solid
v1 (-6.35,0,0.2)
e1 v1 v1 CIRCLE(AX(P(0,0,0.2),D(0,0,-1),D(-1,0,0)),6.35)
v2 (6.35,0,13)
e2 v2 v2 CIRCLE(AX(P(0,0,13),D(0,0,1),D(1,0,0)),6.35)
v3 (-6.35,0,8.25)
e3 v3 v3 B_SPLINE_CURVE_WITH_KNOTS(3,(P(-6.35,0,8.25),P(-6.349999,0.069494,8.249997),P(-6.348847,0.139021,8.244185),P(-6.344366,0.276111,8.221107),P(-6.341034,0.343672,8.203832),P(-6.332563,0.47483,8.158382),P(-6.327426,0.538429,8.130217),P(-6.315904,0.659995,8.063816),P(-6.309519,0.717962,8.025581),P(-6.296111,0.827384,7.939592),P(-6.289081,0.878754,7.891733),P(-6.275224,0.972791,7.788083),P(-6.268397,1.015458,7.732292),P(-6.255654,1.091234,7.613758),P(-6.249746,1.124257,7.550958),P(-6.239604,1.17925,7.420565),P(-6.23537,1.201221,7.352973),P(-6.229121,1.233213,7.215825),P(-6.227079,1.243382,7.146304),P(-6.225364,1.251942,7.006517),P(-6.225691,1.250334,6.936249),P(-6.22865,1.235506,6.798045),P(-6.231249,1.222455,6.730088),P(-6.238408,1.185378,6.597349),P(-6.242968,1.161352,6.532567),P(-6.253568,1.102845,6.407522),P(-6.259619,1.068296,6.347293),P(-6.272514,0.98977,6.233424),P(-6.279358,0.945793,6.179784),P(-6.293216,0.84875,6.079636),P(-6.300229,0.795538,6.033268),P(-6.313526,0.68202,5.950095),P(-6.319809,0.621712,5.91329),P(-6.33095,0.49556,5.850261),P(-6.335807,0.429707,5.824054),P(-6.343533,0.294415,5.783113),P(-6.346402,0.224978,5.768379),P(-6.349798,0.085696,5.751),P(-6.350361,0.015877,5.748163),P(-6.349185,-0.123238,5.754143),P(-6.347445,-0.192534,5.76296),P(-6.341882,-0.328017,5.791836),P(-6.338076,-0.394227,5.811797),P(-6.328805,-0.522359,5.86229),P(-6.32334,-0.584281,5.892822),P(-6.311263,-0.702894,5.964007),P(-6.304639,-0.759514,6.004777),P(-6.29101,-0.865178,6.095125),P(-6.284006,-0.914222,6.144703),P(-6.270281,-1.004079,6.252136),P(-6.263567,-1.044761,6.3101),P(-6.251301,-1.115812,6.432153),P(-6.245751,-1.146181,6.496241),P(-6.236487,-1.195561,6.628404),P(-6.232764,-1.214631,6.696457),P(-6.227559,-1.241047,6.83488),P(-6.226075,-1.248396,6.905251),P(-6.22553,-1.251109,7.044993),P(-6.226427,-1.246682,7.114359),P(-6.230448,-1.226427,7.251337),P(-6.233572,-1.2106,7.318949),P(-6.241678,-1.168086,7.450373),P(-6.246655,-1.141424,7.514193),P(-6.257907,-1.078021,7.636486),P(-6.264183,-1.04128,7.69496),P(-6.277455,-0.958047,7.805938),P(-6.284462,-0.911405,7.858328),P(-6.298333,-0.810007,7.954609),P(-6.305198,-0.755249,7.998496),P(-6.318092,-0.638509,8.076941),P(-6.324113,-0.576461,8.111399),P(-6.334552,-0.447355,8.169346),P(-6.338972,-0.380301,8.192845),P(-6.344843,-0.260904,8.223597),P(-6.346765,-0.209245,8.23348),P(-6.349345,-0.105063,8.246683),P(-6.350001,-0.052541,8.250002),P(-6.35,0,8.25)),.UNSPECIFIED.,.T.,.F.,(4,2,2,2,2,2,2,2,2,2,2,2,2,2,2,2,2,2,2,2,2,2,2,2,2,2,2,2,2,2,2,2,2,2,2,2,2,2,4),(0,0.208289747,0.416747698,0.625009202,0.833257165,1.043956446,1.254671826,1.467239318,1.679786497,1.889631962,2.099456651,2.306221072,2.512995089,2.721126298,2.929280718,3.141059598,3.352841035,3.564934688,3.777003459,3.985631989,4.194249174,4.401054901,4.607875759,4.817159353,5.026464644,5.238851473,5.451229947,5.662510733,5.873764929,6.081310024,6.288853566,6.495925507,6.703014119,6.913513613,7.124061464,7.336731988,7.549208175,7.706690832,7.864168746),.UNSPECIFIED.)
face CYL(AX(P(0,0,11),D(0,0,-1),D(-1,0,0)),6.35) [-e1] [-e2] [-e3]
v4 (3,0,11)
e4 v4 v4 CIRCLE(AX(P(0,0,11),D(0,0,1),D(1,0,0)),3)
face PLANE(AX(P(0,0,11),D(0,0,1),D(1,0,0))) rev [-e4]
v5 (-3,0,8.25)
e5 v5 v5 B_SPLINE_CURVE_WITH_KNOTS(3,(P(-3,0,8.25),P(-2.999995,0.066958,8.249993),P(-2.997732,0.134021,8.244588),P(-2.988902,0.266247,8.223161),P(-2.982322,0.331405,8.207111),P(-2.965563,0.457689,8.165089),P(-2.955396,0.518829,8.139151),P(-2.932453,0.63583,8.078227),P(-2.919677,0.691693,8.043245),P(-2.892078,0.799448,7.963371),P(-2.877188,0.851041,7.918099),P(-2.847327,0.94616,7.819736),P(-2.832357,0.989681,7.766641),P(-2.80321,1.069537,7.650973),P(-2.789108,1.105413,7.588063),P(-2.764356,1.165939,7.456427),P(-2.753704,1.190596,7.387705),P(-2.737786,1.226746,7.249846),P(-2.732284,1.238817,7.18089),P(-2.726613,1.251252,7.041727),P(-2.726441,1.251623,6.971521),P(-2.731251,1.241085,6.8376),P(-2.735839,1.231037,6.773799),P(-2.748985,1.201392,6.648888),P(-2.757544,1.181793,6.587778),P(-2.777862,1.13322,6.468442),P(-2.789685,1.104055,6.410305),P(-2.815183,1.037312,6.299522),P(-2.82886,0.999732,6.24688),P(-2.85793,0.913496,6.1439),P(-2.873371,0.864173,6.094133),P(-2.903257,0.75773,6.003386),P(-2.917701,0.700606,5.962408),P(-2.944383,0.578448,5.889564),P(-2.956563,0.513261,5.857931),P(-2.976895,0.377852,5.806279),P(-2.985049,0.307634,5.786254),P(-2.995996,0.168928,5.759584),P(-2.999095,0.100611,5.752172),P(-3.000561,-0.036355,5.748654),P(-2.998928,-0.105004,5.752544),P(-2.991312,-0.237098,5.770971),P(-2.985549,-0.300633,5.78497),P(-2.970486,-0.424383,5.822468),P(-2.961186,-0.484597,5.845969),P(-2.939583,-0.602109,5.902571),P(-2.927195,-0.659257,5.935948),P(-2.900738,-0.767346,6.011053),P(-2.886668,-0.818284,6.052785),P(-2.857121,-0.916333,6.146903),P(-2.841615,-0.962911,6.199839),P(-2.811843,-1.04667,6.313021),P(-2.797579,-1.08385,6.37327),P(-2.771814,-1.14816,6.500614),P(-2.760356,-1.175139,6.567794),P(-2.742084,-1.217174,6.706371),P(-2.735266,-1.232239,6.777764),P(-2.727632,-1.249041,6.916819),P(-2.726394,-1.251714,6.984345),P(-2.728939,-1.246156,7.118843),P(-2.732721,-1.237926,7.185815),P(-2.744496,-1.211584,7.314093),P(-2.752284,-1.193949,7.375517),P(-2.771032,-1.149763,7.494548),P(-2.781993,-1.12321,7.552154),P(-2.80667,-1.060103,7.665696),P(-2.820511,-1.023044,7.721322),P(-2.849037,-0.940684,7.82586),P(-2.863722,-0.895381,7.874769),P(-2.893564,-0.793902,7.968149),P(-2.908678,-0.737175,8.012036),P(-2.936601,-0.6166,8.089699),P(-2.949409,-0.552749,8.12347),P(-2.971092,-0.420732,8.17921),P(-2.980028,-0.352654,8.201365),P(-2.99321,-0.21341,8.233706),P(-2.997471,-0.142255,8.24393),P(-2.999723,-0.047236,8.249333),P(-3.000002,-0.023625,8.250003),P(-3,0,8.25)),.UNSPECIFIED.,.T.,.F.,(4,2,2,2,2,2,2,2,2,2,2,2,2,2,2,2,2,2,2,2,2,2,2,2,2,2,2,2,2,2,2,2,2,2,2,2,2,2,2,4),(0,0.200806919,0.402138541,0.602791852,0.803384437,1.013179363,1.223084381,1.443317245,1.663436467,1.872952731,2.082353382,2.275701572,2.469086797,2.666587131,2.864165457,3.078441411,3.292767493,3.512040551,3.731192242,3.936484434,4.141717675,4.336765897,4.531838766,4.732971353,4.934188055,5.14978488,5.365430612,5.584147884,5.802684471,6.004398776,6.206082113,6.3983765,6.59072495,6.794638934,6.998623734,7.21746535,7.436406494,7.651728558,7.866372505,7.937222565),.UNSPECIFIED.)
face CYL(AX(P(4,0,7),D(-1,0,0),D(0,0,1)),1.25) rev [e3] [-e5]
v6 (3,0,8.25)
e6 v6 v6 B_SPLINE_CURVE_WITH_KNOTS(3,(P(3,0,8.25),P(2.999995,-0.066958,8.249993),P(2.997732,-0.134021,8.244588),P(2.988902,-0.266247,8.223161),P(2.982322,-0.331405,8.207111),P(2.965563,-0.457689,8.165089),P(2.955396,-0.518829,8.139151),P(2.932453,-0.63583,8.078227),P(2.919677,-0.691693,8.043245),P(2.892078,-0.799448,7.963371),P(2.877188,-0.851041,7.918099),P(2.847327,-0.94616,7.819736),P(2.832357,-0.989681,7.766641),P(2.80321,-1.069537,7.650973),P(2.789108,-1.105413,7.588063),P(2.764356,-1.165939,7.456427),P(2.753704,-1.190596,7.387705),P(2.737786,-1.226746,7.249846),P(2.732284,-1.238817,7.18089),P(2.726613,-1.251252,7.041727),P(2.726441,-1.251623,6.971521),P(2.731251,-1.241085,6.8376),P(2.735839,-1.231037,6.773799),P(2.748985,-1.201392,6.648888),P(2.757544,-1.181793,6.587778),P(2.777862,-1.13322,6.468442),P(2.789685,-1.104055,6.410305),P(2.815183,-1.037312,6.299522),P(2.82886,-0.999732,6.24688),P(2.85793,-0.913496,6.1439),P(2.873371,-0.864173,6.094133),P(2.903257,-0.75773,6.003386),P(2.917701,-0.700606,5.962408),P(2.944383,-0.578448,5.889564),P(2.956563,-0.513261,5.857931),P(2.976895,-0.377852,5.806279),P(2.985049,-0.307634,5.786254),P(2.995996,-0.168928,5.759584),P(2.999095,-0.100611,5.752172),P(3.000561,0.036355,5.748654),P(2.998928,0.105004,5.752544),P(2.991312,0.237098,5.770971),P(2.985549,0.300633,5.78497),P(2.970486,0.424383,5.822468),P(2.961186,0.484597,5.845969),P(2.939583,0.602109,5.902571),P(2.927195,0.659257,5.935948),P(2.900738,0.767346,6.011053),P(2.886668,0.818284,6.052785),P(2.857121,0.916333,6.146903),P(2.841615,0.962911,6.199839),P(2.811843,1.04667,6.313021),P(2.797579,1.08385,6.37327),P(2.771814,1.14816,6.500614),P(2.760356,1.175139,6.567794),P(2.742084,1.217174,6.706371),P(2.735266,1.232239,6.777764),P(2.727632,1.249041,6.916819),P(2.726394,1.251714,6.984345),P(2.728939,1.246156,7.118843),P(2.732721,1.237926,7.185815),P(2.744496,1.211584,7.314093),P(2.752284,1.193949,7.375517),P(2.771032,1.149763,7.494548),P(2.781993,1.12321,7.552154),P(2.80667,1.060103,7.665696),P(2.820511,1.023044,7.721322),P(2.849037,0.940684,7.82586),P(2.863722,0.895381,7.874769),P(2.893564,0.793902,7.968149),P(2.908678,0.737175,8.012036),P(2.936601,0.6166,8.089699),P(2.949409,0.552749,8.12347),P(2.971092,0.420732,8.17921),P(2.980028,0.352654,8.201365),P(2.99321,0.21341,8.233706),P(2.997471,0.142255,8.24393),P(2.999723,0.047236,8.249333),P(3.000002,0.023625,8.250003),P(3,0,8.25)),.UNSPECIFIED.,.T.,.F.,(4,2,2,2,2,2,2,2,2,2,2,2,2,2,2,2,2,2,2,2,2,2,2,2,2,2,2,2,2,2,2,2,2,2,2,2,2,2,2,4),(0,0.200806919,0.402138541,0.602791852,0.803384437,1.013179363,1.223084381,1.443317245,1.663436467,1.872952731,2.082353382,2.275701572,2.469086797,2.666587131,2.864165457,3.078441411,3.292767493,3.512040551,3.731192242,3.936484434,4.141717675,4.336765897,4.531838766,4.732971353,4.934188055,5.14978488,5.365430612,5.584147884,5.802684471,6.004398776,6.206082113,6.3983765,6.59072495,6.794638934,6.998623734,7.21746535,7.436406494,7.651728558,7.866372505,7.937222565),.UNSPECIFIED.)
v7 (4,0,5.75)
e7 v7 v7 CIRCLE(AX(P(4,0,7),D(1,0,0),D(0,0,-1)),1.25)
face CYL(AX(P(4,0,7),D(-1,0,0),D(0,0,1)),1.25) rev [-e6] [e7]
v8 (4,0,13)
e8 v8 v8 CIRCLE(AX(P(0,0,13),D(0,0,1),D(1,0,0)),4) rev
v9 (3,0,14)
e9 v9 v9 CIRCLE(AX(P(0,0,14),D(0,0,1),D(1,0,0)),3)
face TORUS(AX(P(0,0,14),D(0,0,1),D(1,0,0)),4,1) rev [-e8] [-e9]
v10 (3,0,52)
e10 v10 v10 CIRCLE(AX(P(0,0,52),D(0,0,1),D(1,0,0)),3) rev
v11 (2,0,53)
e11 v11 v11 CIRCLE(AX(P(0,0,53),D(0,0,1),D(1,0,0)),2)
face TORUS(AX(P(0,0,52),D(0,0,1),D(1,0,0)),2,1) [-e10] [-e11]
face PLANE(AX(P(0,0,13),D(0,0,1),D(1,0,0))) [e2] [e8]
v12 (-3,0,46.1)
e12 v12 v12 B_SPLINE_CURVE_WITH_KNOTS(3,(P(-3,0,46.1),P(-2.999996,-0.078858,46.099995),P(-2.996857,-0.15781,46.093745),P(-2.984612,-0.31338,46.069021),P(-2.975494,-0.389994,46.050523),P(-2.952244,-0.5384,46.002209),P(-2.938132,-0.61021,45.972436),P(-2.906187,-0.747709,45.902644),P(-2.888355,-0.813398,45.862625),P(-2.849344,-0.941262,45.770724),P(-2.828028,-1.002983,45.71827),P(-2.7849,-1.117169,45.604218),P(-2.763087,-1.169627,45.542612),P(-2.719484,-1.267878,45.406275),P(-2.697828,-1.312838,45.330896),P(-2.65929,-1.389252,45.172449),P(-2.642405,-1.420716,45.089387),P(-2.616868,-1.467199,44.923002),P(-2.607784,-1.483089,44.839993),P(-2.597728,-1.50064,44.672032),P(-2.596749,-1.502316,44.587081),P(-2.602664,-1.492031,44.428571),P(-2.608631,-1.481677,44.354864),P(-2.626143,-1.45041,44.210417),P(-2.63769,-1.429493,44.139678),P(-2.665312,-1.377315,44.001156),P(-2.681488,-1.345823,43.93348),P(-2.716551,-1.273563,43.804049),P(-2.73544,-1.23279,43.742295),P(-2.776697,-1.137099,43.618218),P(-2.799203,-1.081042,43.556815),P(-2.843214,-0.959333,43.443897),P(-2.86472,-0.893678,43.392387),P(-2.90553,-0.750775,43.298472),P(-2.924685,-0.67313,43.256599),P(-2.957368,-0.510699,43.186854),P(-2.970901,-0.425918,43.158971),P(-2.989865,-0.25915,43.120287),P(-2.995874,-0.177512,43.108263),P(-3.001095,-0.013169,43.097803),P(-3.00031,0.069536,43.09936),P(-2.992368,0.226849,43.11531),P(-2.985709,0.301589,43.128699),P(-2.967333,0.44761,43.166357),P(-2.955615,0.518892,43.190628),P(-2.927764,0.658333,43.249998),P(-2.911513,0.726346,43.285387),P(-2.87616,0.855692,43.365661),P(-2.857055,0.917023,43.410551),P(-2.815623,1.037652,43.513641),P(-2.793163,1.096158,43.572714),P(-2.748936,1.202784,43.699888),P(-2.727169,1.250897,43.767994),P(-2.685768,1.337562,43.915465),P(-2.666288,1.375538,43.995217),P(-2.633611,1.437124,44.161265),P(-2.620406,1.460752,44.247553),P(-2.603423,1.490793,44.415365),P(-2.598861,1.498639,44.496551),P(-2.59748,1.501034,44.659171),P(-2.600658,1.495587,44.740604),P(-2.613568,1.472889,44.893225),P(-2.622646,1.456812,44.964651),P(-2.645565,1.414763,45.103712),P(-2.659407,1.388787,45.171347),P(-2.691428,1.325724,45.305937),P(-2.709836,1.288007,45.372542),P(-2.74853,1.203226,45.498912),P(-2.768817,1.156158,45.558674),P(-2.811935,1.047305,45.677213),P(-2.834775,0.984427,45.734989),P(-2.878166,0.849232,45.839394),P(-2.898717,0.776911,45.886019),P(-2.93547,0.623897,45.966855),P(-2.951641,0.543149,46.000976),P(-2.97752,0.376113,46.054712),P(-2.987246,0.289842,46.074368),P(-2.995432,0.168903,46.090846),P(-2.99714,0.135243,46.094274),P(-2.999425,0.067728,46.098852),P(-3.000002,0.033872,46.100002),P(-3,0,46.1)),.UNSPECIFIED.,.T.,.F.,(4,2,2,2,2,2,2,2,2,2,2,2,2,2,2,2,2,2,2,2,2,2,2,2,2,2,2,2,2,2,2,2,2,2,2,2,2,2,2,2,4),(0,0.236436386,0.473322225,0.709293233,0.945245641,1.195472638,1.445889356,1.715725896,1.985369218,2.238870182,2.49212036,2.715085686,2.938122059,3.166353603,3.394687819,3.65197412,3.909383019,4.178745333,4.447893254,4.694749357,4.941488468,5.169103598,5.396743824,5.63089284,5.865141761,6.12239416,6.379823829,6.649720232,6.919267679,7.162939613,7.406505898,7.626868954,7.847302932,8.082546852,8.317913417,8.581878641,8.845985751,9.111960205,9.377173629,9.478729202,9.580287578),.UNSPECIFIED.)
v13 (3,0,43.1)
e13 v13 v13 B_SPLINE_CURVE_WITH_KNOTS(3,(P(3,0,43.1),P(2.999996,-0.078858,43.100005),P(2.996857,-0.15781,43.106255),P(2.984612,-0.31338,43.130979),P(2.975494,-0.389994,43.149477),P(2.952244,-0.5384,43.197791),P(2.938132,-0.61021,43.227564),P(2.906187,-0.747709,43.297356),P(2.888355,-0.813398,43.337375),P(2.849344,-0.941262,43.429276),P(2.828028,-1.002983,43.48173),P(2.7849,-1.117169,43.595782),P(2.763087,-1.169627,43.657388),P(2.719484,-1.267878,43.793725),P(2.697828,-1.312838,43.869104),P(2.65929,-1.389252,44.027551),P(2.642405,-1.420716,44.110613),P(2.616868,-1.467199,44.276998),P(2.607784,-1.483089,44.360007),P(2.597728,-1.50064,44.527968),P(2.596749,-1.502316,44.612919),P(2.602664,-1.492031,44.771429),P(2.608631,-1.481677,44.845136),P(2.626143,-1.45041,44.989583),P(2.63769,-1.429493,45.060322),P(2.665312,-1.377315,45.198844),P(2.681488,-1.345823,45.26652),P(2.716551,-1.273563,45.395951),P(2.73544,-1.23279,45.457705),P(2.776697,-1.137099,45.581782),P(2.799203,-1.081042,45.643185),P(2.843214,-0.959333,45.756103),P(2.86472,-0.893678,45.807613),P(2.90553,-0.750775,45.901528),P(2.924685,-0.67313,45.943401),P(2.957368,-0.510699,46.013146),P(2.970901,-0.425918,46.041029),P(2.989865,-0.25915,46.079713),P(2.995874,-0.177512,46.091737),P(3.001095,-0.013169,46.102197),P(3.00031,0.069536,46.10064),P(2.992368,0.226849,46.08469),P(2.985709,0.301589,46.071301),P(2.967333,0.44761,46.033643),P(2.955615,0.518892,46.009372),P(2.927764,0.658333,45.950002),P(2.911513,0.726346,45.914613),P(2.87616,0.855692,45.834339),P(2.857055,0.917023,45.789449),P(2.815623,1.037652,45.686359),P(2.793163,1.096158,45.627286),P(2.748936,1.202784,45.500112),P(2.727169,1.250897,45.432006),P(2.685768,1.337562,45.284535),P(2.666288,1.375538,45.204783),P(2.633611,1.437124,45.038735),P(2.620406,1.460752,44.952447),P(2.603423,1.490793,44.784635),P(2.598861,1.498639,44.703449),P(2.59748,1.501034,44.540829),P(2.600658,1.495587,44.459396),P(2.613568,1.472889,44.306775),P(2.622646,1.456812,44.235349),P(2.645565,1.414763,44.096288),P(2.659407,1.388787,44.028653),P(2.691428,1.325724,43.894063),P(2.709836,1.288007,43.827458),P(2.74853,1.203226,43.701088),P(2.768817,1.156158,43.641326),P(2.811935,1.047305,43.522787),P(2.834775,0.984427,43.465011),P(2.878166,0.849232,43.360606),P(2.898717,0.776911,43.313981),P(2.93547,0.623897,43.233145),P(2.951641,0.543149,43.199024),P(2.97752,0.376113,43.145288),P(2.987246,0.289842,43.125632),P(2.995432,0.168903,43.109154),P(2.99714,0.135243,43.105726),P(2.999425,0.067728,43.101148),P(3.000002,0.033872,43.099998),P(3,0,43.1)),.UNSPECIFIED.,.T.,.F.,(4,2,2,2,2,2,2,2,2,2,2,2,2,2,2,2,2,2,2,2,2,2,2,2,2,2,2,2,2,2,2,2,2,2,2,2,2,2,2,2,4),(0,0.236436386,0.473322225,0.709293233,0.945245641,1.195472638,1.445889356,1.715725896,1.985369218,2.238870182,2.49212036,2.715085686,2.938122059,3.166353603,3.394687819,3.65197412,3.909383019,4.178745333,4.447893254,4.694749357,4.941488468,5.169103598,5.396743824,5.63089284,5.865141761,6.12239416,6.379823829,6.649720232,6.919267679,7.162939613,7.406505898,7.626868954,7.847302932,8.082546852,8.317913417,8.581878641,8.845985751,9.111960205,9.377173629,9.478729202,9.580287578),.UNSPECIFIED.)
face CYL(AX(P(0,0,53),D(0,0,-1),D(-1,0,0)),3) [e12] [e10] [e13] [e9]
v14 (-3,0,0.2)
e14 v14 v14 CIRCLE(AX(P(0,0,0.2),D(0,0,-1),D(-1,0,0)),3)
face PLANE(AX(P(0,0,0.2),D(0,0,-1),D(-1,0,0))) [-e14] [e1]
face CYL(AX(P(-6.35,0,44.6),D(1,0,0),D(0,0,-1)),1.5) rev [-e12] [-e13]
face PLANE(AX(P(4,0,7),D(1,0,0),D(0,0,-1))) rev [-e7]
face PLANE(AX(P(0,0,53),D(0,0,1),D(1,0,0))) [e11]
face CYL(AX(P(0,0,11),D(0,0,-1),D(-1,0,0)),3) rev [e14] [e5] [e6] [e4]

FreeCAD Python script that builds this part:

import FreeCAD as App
import Part
import Sketcher
from FreeCAD import Vector


def edges_at(feature, points):
    """Names of the edges that pass closest to the given points."""
    edges = feature.Shape.Edges
    near = lambda p: min(range(len(edges)), key=lambda i: edges[i].distToShape(Part.Vertex(*p))[0])
    return sorted({f"Edge{near(p) + 1}" for p in points})

doc = App.newDocument("Part")
body = doc.addObject("PartDesign::Body", "Body")

sketch1 = doc.addObject("Sketcher::SketchObject", "Sketch")
body.addObject(sketch1)
sketch1.AttachmentSupport = (doc.XY_Plane, [""])
sketch1.MapMode = "FlatFace"
sketch1.addGeometry(Part.Circle(Vector(0, 0, 0), Vector(0, 0, 1), 6.3), False)
sketch1.addGeometry(Part.Circle(Vector(0, 0, 0), Vector(0, 0, 1), 3), False)
sketch1.addConstraint(Sketcher.Constraint("Coincident", 0, 3, -1, 1))
sketch1.addConstraint(Sketcher.Constraint("Coincident", 1, 3, -1, 1))
sketch1.addConstraint(Sketcher.Constraint("Diameter", 1, 6.0))
sketch1.addConstraint(Sketcher.Constraint("Diameter", 0, 12.7))
pad1 = doc.addObject("PartDesign::Pad", "Pad")
body.addObject(pad1)
pad1.Profile = sketch1
pad1.Length = 11

sketch2 = doc.addObject("Sketcher::SketchObject", "Sketch001")
body.addObject(sketch2)
sketch2.AttachmentSupport = (doc.XY_Plane, [""])
sketch2.MapMode = "FlatFace"
sketch2.AttachmentOffset = App.Placement(Vector(0, 0, 11), App.Rotation())
sketch2.addGeometry(Part.Circle(Vector(0, 0, 0), Vector(0, 0, 1), 6), False)
sketch2.addConstraint(Sketcher.Constraint("Coincident", 0, 3, -1, 1))
sketch2.addConstraint(Sketcher.Constraint("Diameter", 0, 12.7))
pad2 = doc.addObject("PartDesign::Pad", "Pad001")
body.addObject(pad2)
pad2.Profile = sketch2
pad2.Length = 2

sketch3 = doc.addObject("Sketcher::SketchObject", "Sketch002")
body.addObject(sketch3)
sketch3.AttachmentSupport = (doc.XY_Plane, [""])
sketch3.MapMode = "FlatFace"
sketch3.AttachmentOffset = App.Placement(Vector(0, 0, 13), App.Rotation())
sketch3.addGeometry(Part.Circle(Vector(0, 0, 0), Vector(0, 0, 1), 3), False)
sketch3.addConstraint(Sketcher.Constraint("Coincident", 0, 3, -1, 1))
sketch3.addConstraint(Sketcher.Constraint("Diameter", 0, 6.0))
pad3 = doc.addObject("PartDesign::Pad", "Pad002")
body.addObject(pad3)
pad3.Profile = sketch3
pad3.Length = 40

sketch4 = doc.addObject("Sketcher::SketchObject", "Sketch003")
body.addObject(sketch4)
sketch4.AttachmentSupport = (doc.YZ_Plane, [""])
sketch4.MapMode = "FlatFace"
sketch4.addGeometry(Part.Circle(Vector(0, 7, 0), Vector(0, 0, 1), 1.2), False)
sketch4.addConstraint(Sketcher.Constraint("PointOnObject", 0, 3, -2))
sketch4.addConstraint(Sketcher.Constraint("Diameter", 0, 2.5))
sketch4.addConstraint(Sketcher.Constraint("DistanceY", -1, 1, 0, 3, 7.0))
pocket1 = doc.addObject("PartDesign::Pocket", "Pocket")
body.addObject(pocket1)
pocket1.Profile = sketch4
pocket1.Type = "TwoLengths"
pocket1.Length = 4
pocket1.Length2 = 30
pocket1.Reversed = True
doc.recompute()

fillet = doc.addObject("PartDesign::Fillet", "Fillet")
body.addObject(fillet)
fillet.Base = (pocket1, edges_at(pocket1, [(-3, 0, 13)]))
fillet.Radius = 1
doc.recompute()

fillet2 = doc.addObject("PartDesign::Fillet", "Fillet001")
body.addObject(fillet2)
fillet2.Base = (fillet, edges_at(fillet, [(-3, 0, 53)]))
fillet2.Radius = 1

sketch5 = doc.addObject("Sketcher::SketchObject", "Sketch004")
body.addObject(sketch5)
sketch5.AttachmentSupport = (doc.YZ_Plane, [""])
sketch5.MapMode = "FlatFace"
sketch5.addGeometry(Part.Circle(Vector(0, 44.6, 0), Vector(0, 0, 1), 1.5), False)
sketch5.addConstraint(Sketcher.Constraint("PointOnObject", 0, 3, -2))
sketch5.addConstraint(Sketcher.Constraint("Diameter", 0, 3.0))
sketch5.addConstraint(Sketcher.Constraint("DistanceY", -1, 1, 0, 3, 44.6))
pocket2 = doc.addObject("PartDesign::Pocket", "Pocket001")
body.addObject(pocket2)
pocket2.Profile = sketch5
pocket2.Type = "ThroughAll"
pocket2.Midplane = True

sketch6 = doc.addObject("Sketcher::SketchObject", "Sketch005")
body.addObject(sketch6)
sketch6.AttachmentSupport = (doc.XY_Plane, [""])
sketch6.MapMode = "FlatFace"
sketch6.addGeometry(Part.Circle(Vector(0, 0, 0), Vector(0, 0, 1), 6), False)
sketch6.addConstraint(Sketcher.Constraint("Coincident", 0, 3, -1, 1))
sketch6.addConstraint(Sketcher.Constraint("Diameter", 0, 12.7))
pocket3 = doc.addObject("PartDesign::Pocket", "Pocket002")
body.addObject(pocket3)
pocket3.Profile = sketch6
pocket3.Length = 0.2
pocket3.Reversed = True

doc.recompute()
